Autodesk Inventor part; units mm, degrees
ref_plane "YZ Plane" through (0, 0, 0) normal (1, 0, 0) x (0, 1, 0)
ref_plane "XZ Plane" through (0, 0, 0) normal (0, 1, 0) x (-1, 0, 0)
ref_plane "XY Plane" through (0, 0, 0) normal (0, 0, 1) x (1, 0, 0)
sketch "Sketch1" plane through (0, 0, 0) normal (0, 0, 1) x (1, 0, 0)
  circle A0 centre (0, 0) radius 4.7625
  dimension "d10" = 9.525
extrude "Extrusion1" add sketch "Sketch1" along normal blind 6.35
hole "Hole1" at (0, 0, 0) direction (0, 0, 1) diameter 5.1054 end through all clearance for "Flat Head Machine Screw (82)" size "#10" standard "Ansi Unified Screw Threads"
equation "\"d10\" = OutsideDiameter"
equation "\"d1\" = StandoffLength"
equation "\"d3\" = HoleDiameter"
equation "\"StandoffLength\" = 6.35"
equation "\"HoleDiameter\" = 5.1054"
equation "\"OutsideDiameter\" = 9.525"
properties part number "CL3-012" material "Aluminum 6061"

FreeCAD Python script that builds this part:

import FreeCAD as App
import Part
import Sketcher

V = App.Vector
Q = App.Units.Quantity

doc = App.newDocument("Part")
body = doc.addObject("PartDesign::Body", "Body")

sketch1 = body.newObject("Sketcher::SketchObject", "Sketch")
sketch1.AttachmentSupport = (doc.getObject("XY_Plane"), [""])
sketch1.MapMode = "FlatFace"
sketch1.addGeometry(Part.Circle(V(0, 0, 0), V(0, 0, 1), 4.8), False)
sketch1.addConstraint([
    Sketcher.Constraint("Coincident", 0, 3, -1, 1),
    Sketcher.Constraint("Diameter", 0, Q("0.375 in")),
])
pad1 = body.newObject("PartDesign::Pad", "Pad")
pad1.Profile = sketch1
pad1.Length = Q("0.25 in")

sketch2 = body.newObject("Sketcher::SketchObject", "Sketch001")
sketch2.AttachmentSupport = (doc.getObject("XY_Plane"), [""])
sketch2.MapMode = "FlatFace"
sketch2.addGeometry(Part.Circle(V(0, 0, 0), V(0, 0, 1), 2.6), False)
sketch2.addConstraint([
    Sketcher.Constraint("Coincident", 0, 3, -1, 1),
    Sketcher.Constraint("Diameter", 0, Q("0.201 in")),
])
doc.recompute()
hole = body.newObject("PartDesign::Hole", "Hole")
hole.Profile = sketch2
hole.ThreadType = "None"
hole.Diameter = Q("0.201 in")
hole.DepthType = "ThroughAll"
hole.Reversed = True

doc.recompute()
